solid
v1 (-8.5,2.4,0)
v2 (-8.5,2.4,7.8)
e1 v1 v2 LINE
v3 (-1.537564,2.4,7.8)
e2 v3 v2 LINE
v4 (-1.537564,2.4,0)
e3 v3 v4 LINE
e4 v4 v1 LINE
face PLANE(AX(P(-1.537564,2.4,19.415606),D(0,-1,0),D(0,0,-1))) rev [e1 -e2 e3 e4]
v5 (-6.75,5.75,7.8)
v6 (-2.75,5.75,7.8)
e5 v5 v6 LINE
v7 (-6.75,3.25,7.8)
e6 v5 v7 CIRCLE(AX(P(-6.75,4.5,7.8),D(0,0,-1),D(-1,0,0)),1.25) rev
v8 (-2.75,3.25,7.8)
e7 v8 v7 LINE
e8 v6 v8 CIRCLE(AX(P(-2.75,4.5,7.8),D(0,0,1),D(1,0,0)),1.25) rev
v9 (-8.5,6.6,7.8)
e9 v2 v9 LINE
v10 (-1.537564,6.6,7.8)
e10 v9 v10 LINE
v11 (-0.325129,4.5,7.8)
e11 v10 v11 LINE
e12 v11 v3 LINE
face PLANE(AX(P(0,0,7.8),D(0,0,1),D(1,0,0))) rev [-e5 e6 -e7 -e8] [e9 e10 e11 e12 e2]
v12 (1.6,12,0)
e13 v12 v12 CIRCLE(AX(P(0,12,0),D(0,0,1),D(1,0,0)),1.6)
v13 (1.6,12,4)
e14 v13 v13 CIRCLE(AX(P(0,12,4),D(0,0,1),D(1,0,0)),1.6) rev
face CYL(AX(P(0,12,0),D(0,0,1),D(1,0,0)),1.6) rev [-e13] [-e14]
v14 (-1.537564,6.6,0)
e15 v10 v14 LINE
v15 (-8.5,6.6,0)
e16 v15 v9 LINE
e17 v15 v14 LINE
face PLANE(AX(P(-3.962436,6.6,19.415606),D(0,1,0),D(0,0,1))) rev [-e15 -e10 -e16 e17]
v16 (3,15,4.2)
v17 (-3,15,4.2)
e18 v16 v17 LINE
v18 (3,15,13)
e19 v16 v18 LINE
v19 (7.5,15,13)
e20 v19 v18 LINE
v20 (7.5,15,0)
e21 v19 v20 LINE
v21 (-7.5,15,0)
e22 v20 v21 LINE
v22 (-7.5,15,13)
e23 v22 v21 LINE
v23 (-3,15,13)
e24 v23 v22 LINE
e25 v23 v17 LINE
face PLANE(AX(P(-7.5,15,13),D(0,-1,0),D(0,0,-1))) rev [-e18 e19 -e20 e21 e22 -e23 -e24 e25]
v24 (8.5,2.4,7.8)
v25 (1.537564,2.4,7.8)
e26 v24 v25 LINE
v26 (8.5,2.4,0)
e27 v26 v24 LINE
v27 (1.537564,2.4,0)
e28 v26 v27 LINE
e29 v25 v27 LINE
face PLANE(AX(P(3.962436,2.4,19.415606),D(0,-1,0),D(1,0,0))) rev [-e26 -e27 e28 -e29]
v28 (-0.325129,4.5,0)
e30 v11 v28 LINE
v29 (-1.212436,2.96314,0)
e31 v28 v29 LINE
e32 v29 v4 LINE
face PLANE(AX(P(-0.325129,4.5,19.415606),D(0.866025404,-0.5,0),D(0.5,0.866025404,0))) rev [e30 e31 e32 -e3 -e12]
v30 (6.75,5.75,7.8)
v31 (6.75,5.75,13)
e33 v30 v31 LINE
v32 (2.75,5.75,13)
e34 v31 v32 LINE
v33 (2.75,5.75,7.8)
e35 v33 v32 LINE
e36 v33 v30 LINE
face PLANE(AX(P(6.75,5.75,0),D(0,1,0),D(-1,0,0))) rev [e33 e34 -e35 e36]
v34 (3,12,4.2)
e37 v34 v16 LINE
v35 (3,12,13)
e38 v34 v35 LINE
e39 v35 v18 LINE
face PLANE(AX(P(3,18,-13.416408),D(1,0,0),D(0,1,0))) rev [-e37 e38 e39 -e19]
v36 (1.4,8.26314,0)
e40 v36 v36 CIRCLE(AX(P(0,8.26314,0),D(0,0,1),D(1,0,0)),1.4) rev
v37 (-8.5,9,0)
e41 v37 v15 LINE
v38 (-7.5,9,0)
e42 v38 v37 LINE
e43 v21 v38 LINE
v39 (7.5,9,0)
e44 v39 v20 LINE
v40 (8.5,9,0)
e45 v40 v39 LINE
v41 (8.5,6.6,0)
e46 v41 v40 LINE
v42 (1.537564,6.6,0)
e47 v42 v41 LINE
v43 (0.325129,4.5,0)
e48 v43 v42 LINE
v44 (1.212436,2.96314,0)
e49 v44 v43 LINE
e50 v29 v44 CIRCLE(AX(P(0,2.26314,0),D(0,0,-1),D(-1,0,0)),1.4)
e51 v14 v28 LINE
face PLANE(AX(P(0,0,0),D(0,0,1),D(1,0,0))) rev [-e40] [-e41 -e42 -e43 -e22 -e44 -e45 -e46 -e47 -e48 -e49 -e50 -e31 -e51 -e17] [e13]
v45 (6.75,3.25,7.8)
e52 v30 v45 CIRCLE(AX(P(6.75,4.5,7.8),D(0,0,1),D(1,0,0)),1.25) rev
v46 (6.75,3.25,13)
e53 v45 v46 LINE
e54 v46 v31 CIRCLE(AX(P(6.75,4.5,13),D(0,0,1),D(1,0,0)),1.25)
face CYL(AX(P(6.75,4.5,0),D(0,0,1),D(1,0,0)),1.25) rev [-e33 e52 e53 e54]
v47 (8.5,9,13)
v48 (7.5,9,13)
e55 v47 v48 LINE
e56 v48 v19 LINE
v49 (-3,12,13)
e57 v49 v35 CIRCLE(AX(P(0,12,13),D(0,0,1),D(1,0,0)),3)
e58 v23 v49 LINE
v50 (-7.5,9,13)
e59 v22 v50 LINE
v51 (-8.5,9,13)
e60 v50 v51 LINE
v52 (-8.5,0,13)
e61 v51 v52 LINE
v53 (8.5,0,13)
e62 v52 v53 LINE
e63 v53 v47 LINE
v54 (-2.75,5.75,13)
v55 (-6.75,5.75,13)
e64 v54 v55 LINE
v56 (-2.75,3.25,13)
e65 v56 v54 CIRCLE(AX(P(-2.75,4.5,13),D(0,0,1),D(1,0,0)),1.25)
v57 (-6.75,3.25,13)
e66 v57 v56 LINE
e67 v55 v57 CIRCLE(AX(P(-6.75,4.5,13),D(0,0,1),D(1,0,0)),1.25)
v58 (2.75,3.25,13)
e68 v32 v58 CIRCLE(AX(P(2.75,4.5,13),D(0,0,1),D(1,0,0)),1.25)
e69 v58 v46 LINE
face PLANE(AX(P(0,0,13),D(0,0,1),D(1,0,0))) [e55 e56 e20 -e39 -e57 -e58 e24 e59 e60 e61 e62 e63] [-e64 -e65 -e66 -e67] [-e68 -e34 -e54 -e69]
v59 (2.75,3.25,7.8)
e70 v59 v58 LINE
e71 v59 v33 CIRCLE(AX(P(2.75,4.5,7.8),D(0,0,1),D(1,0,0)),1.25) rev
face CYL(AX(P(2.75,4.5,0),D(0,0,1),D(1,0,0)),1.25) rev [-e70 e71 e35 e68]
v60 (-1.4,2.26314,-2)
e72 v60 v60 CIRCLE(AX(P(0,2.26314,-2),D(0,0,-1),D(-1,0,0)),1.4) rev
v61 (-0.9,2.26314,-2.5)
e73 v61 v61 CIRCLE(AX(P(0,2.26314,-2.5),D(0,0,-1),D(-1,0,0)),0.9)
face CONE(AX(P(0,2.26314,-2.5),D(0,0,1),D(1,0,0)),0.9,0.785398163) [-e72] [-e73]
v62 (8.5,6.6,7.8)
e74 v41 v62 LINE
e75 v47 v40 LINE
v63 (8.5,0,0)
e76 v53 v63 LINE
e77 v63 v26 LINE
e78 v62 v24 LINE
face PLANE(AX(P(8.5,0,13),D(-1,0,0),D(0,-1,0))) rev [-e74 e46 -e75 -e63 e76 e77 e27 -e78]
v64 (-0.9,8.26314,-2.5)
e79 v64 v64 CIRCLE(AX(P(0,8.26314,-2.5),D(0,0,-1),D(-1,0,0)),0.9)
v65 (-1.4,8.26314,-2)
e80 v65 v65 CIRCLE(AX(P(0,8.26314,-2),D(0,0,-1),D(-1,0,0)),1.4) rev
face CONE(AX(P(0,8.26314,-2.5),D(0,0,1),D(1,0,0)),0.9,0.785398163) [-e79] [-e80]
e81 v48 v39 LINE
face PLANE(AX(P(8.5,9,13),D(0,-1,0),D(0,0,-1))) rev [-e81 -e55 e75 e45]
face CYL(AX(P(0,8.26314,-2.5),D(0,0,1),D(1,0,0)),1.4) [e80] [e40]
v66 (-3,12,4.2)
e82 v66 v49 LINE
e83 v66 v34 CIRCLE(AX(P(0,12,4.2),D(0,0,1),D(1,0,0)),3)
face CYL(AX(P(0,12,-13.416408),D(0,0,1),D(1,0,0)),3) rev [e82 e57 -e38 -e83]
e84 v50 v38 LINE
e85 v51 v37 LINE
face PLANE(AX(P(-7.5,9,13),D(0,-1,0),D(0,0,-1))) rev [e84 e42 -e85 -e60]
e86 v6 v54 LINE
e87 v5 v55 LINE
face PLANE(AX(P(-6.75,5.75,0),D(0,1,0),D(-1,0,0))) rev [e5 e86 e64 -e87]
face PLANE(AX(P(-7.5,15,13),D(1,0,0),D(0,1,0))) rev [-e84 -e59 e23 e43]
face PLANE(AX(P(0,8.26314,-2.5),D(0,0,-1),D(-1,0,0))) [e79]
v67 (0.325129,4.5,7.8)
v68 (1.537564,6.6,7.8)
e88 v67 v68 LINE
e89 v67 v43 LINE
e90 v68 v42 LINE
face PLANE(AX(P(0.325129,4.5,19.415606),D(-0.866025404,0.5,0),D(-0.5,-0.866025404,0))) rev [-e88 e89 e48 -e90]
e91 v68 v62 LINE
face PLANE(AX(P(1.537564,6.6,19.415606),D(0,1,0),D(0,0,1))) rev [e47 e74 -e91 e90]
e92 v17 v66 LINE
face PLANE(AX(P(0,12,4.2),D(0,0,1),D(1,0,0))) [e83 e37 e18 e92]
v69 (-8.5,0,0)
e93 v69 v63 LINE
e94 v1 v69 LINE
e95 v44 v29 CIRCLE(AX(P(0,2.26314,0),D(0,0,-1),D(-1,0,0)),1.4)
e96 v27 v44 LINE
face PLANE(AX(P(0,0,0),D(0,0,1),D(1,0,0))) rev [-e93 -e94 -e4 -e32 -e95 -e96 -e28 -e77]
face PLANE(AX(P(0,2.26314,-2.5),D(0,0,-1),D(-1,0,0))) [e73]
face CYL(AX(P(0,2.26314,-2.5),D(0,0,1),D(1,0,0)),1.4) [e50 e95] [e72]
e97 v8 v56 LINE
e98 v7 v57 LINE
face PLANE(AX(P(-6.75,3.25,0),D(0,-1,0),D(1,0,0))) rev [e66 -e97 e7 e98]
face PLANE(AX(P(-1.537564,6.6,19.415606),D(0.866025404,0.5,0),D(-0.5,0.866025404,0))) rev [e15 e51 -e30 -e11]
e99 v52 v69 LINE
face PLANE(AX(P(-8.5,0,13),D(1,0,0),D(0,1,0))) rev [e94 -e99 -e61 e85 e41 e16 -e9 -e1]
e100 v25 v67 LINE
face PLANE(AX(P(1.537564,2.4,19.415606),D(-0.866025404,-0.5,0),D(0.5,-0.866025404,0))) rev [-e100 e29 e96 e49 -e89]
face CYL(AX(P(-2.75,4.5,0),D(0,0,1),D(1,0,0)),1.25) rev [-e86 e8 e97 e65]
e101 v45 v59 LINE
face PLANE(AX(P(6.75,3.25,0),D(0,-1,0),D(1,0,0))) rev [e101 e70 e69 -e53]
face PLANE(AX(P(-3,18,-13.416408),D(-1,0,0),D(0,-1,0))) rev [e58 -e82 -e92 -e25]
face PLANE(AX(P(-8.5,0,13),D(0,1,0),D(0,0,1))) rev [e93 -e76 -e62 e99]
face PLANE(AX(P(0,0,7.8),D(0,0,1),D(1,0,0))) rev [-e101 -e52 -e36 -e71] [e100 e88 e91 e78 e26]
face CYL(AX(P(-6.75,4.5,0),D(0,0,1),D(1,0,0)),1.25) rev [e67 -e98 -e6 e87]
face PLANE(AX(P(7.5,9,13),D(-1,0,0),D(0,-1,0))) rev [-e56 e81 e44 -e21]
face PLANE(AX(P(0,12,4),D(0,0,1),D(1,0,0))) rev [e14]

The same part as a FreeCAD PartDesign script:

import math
import FreeCAD as App
import Part
import Sketcher
from FreeCAD import Vector
Q = App.Units.Quantity


def edges_at(feature, points):
    """Names of the edges that pass closest to the given points."""
    edges = feature.Shape.Edges
    near = lambda p: min(range(len(edges)), key=lambda i: edges[i].distToShape(Part.Vertex(*p))[0])
    return sorted({f"Edge{near(p) + 1}" for p in points})


def add_polygon(sketch, points):
    """Adds a closed chain of lines whose ends are joined by coincident constraints."""
    first, n = sketch.GeometryCount, len(points)
    for a, b in zip(points, points[1:] + points[:1]):
        sketch.addGeometry(Part.LineSegment(App.Vector(*a, 0), App.Vector(*b, 0)), False)
    for i in range(n):
        sketch.addConstraint(Sketcher.Constraint("Coincident", first + i, 2, first + (i + 1) % n, 1))

doc = App.newDocument("Part")
body = doc.addObject("PartDesign::Body", "Body")

# Sketch on XY plane
sketch1 = body.newObject("Sketcher::SketchObject", "Sketch")
sketch1.AttachmentSupport = (doc.getObject("XY_Plane"), [""])
sketch1.MapMode = "FlatFace"
add_polygon(sketch1, [(-8.5, 0), (8.5, 0), (8.5, 9), (7.5, 9), (7.5, 15), (-7.5, 15), (-7.5, 9), (-8.5, 9)])  # lines 0-7
sketch1.addConstraint([
    Sketcher.Constraint("Horizontal", 0),
    Sketcher.Constraint("Vertical", 1),
    Sketcher.Constraint("Horizontal", 2),
    Sketcher.Constraint("Vertical", 3),
    Sketcher.Constraint("Horizontal", 4),
    Sketcher.Constraint("Vertical", 5),
    Sketcher.Constraint("Horizontal", 6),
    Sketcher.Constraint("Vertical", 7),
    Sketcher.Constraint("Symmetric", 0, 2, 7, 2, -1, 1),
    Sketcher.Constraint("Symmetric", 2, 2, 5, 2, -2),
    Sketcher.Constraint("DistanceX", 0, 1, 0, 2, Q("17 mm")),
    Sketcher.Constraint("DistanceX", 2, 2, 2, 1, Q("1 mm")),
    Sketcher.Constraint("DistanceY", 1, 1, 1, 2, Q("9 mm")),
    Sketcher.Constraint("DistanceY", 3, 1, 3, 2, Q("6 mm")),
])
pad1 = body.newObject("PartDesign::Pad", "Pad")
pad1.Profile = sketch1
pad1.Length = 13

# Sketch on XY plane
sketch2 = body.newObject("Sketcher::SketchObject", "Sketch001")
sketch2.AttachmentSupport = (doc.getObject("XY_Plane"), [""])
sketch2.MapMode = "FlatFace"
sketch2.AttachmentOffset = App.Placement(Vector(0, 0, 13), App.Rotation())
sketch2.addGeometry([
    Part.LineSegment(Vector(3, 12, 0), Vector(3, 18, 0)),
    Part.ArcOfCircle(Part.Circle(Vector(0, 18, 0), Vector(0, 0, 1), 3), math.radians(0), math.radians(180)),
    Part.LineSegment(Vector(-3, 18, 0), Vector(-3, 12, 0)),
    Part.ArcOfCircle(Part.Circle(Vector(0, 12, 0), Vector(0, 0, 1), 3), math.radians(180), math.radians(360)),
], False)
sketch2.addConstraint([
    Sketcher.Constraint("Tangent", 0, 2, 1, 1),
    Sketcher.Constraint("Tangent", 1, 2, 2, 1),
    Sketcher.Constraint("Tangent", 2, 2, 3, 1),
    Sketcher.Constraint("Tangent", 3, 2, 0, 1),
    Sketcher.Constraint("Vertical", 0),
    Sketcher.Constraint("Vertical", 2),
    Sketcher.Constraint("PointOnObject", 1, 3, -2),
    Sketcher.Constraint("Radius", 1, Q("3 mm")),
    Sketcher.Constraint("DistanceY", 0, 1, 0, 2, Q("6 mm")),
    Sketcher.Constraint("DistanceY", -1, 1, 1, 3, Q("18 mm")),
])
pocket1 = body.newObject("PartDesign::Pocket", "Pocket")
pocket1.Profile = sketch2
pocket1.Length = 9

# Sketch on XY plane
sketch3 = body.newObject("Sketcher::SketchObject", "Sketch002")
sketch3.AttachmentSupport = (doc.getObject("XY_Plane"), [""])
sketch3.MapMode = "FlatFace"
sketch3.AttachmentOffset = App.Placement(Vector(0, 0, 4), App.Rotation())
sketch3.addGeometry(Part.Circle(Vector(0, 12, 0), Vector(0, 0, 1), 1.6), False)
sketch3.addConstraint([
    Sketcher.Constraint("PointOnObject", 0, 3, -2),
    Sketcher.Constraint("Diameter", 0, Q("3.2 mm")),
    Sketcher.Constraint("DistanceY", -1, 1, 0, 3, Q("12 mm")),
])
pocket2 = body.newObject("PartDesign::Pocket", "Pocket001")
pocket2.Profile = sketch3
pocket2.Type = "ThroughAll"

# Sketch on XY plane
sketch4 = body.newObject("Sketcher::SketchObject", "Sketch003")
sketch4.AttachmentSupport = (doc.getObject("XY_Plane"), [""])
sketch4.MapMode = "FlatFace"
sketch4.AttachmentOffset = App.Placement(Vector(0, 0, 13), App.Rotation())
sketch4.addGeometry([
    Part.Circle(Vector(-4.8, 4.5, 0), Vector(0, 0, 1), 1.2),
    Part.Circle(Vector(4.8, 4.5, 0), Vector(0, 0, 1), 1.2),
], False)
sketch4.addConstraint([
    Sketcher.Constraint("Equal", 0, 1),
    Sketcher.Constraint("Symmetric", 0, 3, 1, 3, -2),
    Sketcher.Constraint("Diameter", 0, Q("2.5 mm")),
    Sketcher.Constraint("DistanceY", -1, 1, 0, 3, Q("4.5 mm")),
    Sketcher.Constraint("DistanceX", 0, 3, 1, 3, Q("9.5 mm")),
])
pocket3 = body.newObject("PartDesign::Pocket", "Pocket002")
pocket3.Profile = sketch4
pocket3.Type = "ThroughAll"

# Sketch on XY plane
sketch5 = body.newObject("Sketcher::SketchObject", "Sketch004")
sketch5.AttachmentSupport = (doc.getObject("XY_Plane"), [""])
sketch5.MapMode = "FlatFace"
sketch5.AttachmentOffset = App.Placement(Vector(0, 0, 13), App.Rotation())
sketch5.addGeometry([
    Part.LineSegment(Vector(-2.8, 5.8, 0), Vector(-6.8, 5.8, 0)),  # 0
    Part.ArcOfCircle(Part.Circle(Vector(-6.8, 4.5, 0), Vector(0, 0, 1), 1.2), math.radians(90), math.radians(270)),  # 1
    Part.LineSegment(Vector(-6.8, 3.2, 0), Vector(-2.8, 3.2, 0)),  # 2
    Part.ArcOfCircle(Part.Circle(Vector(-2.8, 4.5, 0), Vector(0, 0, 1), 1.2), math.radians(-90), math.radians(90)),  # 3
    Part.LineSegment(Vector(2.8, 3.2, 0), Vector(6.8, 3.2, 0)),  # 4
    Part.ArcOfCircle(Part.Circle(Vector(6.8, 4.5, 0), Vector(0, 0, 1), 1.2), math.radians(-90), math.radians(90)),  # 5
    Part.LineSegment(Vector(6.8, 5.8, 0), Vector(2.8, 5.8, 0)),  # 6
    Part.ArcOfCircle(Part.Circle(Vector(2.8, 4.5, 0), Vector(0, 0, 1), 1.2), math.radians(90), math.radians(270)),  # 7
], False)
sketch5.addConstraint([
    Sketcher.Constraint("Tangent", 0, 2, 1, 1),
    Sketcher.Constraint("Tangent", 1, 2, 2, 1),
    Sketcher.Constraint("Tangent", 2, 2, 3, 1),
    Sketcher.Constraint("Tangent", 3, 2, 0, 1),
    Sketcher.Constraint("Tangent", 4, 2, 5, 1),
    Sketcher.Constraint("Tangent", 5, 2, 6, 1),
    Sketcher.Constraint("Tangent", 6, 2, 7, 1),
    Sketcher.Constraint("Tangent", 7, 2, 4, 1),
    Sketcher.Constraint("Horizontal", 0),
    Sketcher.Constraint("Horizontal", 2),
    Sketcher.Constraint("Horizontal", 4),
    Sketcher.Constraint("Horizontal", 6),
    Sketcher.Constraint("Equal", 3, 5),
    Sketcher.Constraint("Symmetric", 1, 3, 5, 3, -2),
    Sketcher.Constraint("Equal", 2, 4),
    Sketcher.Constraint("DistanceX", 0, 2, 0, 1, Q("4 mm")),
    Sketcher.Constraint("Radius", 1, Q("1.25 mm")),
    Sketcher.Constraint("DistanceY", -1, 1, 1, 3, Q("4.5 mm")),
    Sketcher.Constraint("DistanceX", 3, 3, 5, 3, Q("9.5 mm")),
])
pocket4 = body.newObject("PartDesign::Pocket", "Pocket003")
pocket4.Profile = sketch5
pocket4.Type = "ThroughAll"

# Sketch on XY plane
sketch6 = body.newObject("Sketcher::SketchObject", "Sketch005")
sketch6.AttachmentSupport = (doc.getObject("XY_Plane"), [""])
sketch6.MapMode = "FlatFace"
add_polygon(sketch6, [(1.5, 6.6), (4, 6.6), (5.2, 4.5), (4, 2.4), (1.5, 2.4), (0.3, 4.5)])  # lines 0-5
add_polygon(sketch6, [(-1.5, 6.6), (-0.3, 4.5), (-1.5, 2.4), (-4, 2.4), (-5.2, 4.5), (-4, 6.6)])  # lines 6-11
sketch6.addConstraint([
    Sketcher.Constraint("Horizontal", 0),
    Sketcher.Constraint("Horizontal", 3),
    Sketcher.Constraint("Horizontal", 8),
    Sketcher.Constraint("Horizontal", 11),
    Sketcher.Constraint("Symmetric", 4, 2, 6, 2, -2),
    Sketcher.Constraint("Symmetric", 3, 2, 7, 2, -2),
    Sketcher.Constraint("Symmetric", 1, 2, 9, 2, -2),
    Sketcher.Constraint("Symmetric", 0, 2, 10, 2, -2),
    Sketcher.Constraint("Parallel", 1, 4),
    Sketcher.Constraint("Parallel", 2, 5),
    Sketcher.Constraint("Parallel", 4, 6),
    Sketcher.Constraint("Parallel", 5, 7),
    Sketcher.Constraint("Parallel", 6, 9),
    Sketcher.Constraint("Horizontal", 1, 2, 4, 2),
    Sketcher.Constraint("Vertical", 0, 2, 2, 2),
    Sketcher.Constraint("Angle", 1, Q("-60 deg")),
    Sketcher.Constraint("DistanceY", -1, 1, 0, 2, Q("6.6 mm")),
    Sketcher.Constraint("DistanceY", -1, 1, 1, 2, Q("4.5 mm")),
    Sketcher.Constraint("DistanceX", 7, 2, 2, 2, Q("5.5 mm")),
    Sketcher.Constraint("DistanceX", 0, 1, 0, 2, Q("2.424871 mm")),
])
pocket5 = body.newObject("PartDesign::Pocket", "Pocket004")
pocket5.Profile = sketch6
pocket5.Length = 7.8
pocket5.Reversed = True

# Sketch on XY plane
sketch7 = body.newObject("Sketcher::SketchObject", "Sketch006")
sketch7.AttachmentSupport = (doc.getObject("XY_Plane"), [""])
sketch7.MapMode = "FlatFace"
sketch7.AttachmentOffset = App.Placement(Vector(0, 0, 7.8), App.Rotation())
add_polygon(sketch7, [(-1.5, 6.6), (-1.5, 2.4), (-8.5, 2.4), (-8.5, 6.6)])  # lines 0-3
add_polygon(sketch7, [(8.5, 6.6), (8.5, 2.4), (1.5, 2.4), (1.5, 6.6)])  # lines 4-7
sketch7.addConstraint([
    Sketcher.Constraint("Vertical", 0),
    Sketcher.Constraint("Horizontal", 1),
    Sketcher.Constraint("Vertical", 2),
    Sketcher.Constraint("Horizontal", 3),
    Sketcher.Constraint("Vertical", 4),
    Sketcher.Constraint("Horizontal", 5),
    Sketcher.Constraint("Vertical", 6),
    Sketcher.Constraint("Horizontal", 7),
    Sketcher.Constraint("Symmetric", 1, 2, 4, 2, -2),
    Sketcher.Constraint("Symmetric", 3, 2, 6, 2, -2),
    Sketcher.Constraint("DistanceY", 0, 2, 0, 1, Q("4.2 mm")),
    Sketcher.Constraint("DistanceX", 1, 2, 4, 2, Q("17 mm")),
    Sketcher.Constraint("DistanceY", -1, 1, 0, 2, Q("2.4 mm")),
    Sketcher.Constraint("DistanceX", 1, 2, 1, 1, Q("6.962436 mm")),
])
pocket6 = body.newObject("PartDesign::Pocket", "Pocket005")
pocket6.Profile = sketch7
pocket6.Length = 7.8

# Sketch on XY plane
sketch8 = body.newObject("Sketcher::SketchObject", "Sketch007")
sketch8.AttachmentSupport = (doc.getObject("XY_Plane"), [""])
sketch8.MapMode = "FlatFace"
sketch8.addGeometry([
    Part.Circle(Vector(0, 8.3, 0), Vector(0, 0, 1), 1.4),
    Part.Circle(Vector(0, 2.3, 0), Vector(0, 0, 1), 1.4),
], False)
sketch8.addConstraint([
    Sketcher.Constraint("Equal", 0, 1),
    Sketcher.Constraint("PointOnObject", 0, 3, -2),
    Sketcher.Constraint("PointOnObject", 1, 3, -2),
    Sketcher.Constraint("Diameter", 0, Q("2.8 mm")),
    Sketcher.Constraint("DistanceY", 1, 3, 0, 3, Q("6 mm")),
    Sketcher.Constraint("DistanceY", -1, 1, 0, 3, Q("8.26314 mm")),
])
pad2 = body.newObject("PartDesign::Pad", "Pad001")
pad2.Profile = sketch8
pad2.Length = 2.5
pad2.Reversed = True
doc.recompute()

chamfer = body.newObject("PartDesign::Chamfer", "Chamfer")
chamfer.Base = (pad2, edges_at(pad2, [(-1.4, 8.263, -2.5), (-1.212, 1.563, -2.5)]))
chamfer.Size = 0.5

# Sketch on XY plane
sketch9 = body.newObject("Sketcher::SketchObject", "Sketch008")
sketch9.AttachmentSupport = (doc.getObject("XY_Plane"), [""])
sketch9.MapMode = "FlatFace"
sketch9.AttachmentOffset = App.Placement(Vector(0, 0, 4.2), App.Rotation())
sketch9.addGeometry([
    Part.LineSegment(Vector(3, 15, 0), Vector(-3, 15, 0)),
    Part.LineSegment(Vector(-3, 15, 0), Vector(-3, 12, 0)),
    Part.ArcOfCircle(Part.Circle(Vector(0, 12, 0), Vector(0, 0, 1), 3), math.radians(180), math.radians(360)),
    Part.LineSegment(Vector(3, 12, 0), Vector(3, 15, 0)),
], False)
sketch9.addConstraint([
    Sketcher.Constraint("Coincident", 0, 2, 1, 1),
    Sketcher.Constraint("Tangent", 1, 2, 2, 1),
    Sketcher.Constraint("Tangent", 2, 2, 3, 1),
    Sketcher.Constraint("Coincident", 3, 2, 0, 1),
    Sketcher.Constraint("Horizontal", 0),
    Sketcher.Constraint("Vertical", 1),
    Sketcher.Constraint("Vertical", 3),
    Sketcher.Constraint("PointOnObject", 2, 3, -2),
    Sketcher.Constraint("Radius", 2, Q("3 mm")),
    Sketcher.Constraint("DistanceY", 1, 2, 1, 1, Q("3 mm")),
    Sketcher.Constraint("DistanceY", -1, 1, 2, 3, Q("12 mm")),
])
pad3 = body.newObject("PartDesign::Pad", "Pad002")
pad3.Profile = sketch9
pad3.Length = 0.2
pad3.Reversed = True

doc.recompute()
